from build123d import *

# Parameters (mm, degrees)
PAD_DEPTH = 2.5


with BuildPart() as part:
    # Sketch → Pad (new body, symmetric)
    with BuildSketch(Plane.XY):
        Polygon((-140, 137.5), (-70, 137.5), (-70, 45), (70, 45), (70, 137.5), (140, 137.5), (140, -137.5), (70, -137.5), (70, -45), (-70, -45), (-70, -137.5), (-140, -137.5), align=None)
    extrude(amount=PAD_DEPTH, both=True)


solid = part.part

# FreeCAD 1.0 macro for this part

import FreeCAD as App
import Part
import Sketcher
from FreeCAD import Vector
Q = App.Units.Quantity

doc = App.newDocument("Part")
body = doc.addObject("PartDesign::Body", "Body")

# Sketch on XY plane
sketch1 = doc.addObject("Sketcher::SketchObject", "Sketch")
body.addObject(sketch1)
sketch1.AttachmentSupport = (doc.XY_Plane, [""])
sketch1.MapMode = "FlatFace"
sketch1.addGeometry([
    Part.LineSegment(Vector(-70, 138, 0), Vector(-140, 138, 0)),  # 0
    Part.LineSegment(Vector(-140, 138, 0), Vector(-140, -138, 0)),  # 1
    Part.LineSegment(Vector(-140, -138, 0), Vector(-70, -138, 0)),  # 2
    Part.LineSegment(Vector(-70, -138, 0), Vector(-70, -45, 0)),  # 3
    Part.LineSegment(Vector(-70, -45, 0), Vector(70, -45, 0)),  # 4
    Part.LineSegment(Vector(70, -45, 0), Vector(70, -138, 0)),  # 5
    Part.LineSegment(Vector(70, -138, 0), Vector(140, -138, 0)),  # 6
    Part.LineSegment(Vector(140, -138, 0), Vector(140, 138, 0)),  # 7
    Part.LineSegment(Vector(140, 138, 0), Vector(70, 138, 0)),  # 8
    Part.LineSegment(Vector(70, 138, 0), Vector(70, 45, 0)),  # 9
    Part.LineSegment(Vector(70, 45, 0), Vector(-70, 45, 0)),  # 10
    Part.LineSegment(Vector(-70, 45, 0), Vector(-70, 138, 0)),  # 11
], False)
sketch1.addConstraint([
    Sketcher.Constraint("Coincident", 0, 2, 1, 1),
    Sketcher.Constraint("Coincident", 1, 2, 2, 1),
    Sketcher.Constraint("Coincident", 2, 2, 3, 1),
    Sketcher.Constraint("Coincident", 3, 2, 4, 1),
    Sketcher.Constraint("Coincident", 4, 2, 5, 1),
    Sketcher.Constraint("Coincident", 5, 2, 6, 1),
    Sketcher.Constraint("Coincident", 6, 2, 7, 1),
    Sketcher.Constraint("Coincident", 7, 2, 8, 1),
    Sketcher.Constraint("Coincident", 8, 2, 9, 1),
    Sketcher.Constraint("Coincident", 9, 2, 10, 1),
    Sketcher.Constraint("Coincident", 10, 2, 11, 1),
    Sketcher.Constraint("Coincident", 11, 2, 0, 1),
    Sketcher.Constraint("Horizontal", 0),
    Sketcher.Constraint("Vertical", 1),
    Sketcher.Constraint("Horizontal", 2),
    Sketcher.Constraint("Vertical", 3),
    Sketcher.Constraint("Horizontal", 4),
    Sketcher.Constraint("Vertical", 5),
    Sketcher.Constraint("Horizontal", 6),
    Sketcher.Constraint("Vertical", 7),
    Sketcher.Constraint("Horizontal", 8),
    Sketcher.Constraint("Vertical", 9),
    Sketcher.Constraint("Horizontal", 10),
    Sketcher.Constraint("Vertical", 11),
    Sketcher.Constraint("Symmetric", 0, 2, 6, 2, -1, 1),
    Sketcher.Constraint("Symmetric", 2, 2, 8, 2, -1, 1),
    Sketcher.Constraint("Symmetric", 4, 2, 10, 2, -1, 1),
    Sketcher.Constraint("Symmetric", 2, 2, 5, 2, -2),
    Sketcher.Constraint("DistanceX", 0, 2, 0, 1, Q("70 mm")),
    Sketcher.Constraint("DistanceX", 4, 1, 4, 2, Q("140 mm")),
    Sketcher.Constraint("DistanceY", 1, 2, 1, 1, Q("275 mm")),
    Sketcher.Constraint("DistanceY", 3, 1, 3, 2, Q("92.5 mm")),
])
pad1 = doc.addObject("PartDesign::Pad", "Pad")
body.addObject(pad1)
pad1.Profile = sketch1
pad1.Length = 5
pad1.Midplane = True

doc.recompute()
